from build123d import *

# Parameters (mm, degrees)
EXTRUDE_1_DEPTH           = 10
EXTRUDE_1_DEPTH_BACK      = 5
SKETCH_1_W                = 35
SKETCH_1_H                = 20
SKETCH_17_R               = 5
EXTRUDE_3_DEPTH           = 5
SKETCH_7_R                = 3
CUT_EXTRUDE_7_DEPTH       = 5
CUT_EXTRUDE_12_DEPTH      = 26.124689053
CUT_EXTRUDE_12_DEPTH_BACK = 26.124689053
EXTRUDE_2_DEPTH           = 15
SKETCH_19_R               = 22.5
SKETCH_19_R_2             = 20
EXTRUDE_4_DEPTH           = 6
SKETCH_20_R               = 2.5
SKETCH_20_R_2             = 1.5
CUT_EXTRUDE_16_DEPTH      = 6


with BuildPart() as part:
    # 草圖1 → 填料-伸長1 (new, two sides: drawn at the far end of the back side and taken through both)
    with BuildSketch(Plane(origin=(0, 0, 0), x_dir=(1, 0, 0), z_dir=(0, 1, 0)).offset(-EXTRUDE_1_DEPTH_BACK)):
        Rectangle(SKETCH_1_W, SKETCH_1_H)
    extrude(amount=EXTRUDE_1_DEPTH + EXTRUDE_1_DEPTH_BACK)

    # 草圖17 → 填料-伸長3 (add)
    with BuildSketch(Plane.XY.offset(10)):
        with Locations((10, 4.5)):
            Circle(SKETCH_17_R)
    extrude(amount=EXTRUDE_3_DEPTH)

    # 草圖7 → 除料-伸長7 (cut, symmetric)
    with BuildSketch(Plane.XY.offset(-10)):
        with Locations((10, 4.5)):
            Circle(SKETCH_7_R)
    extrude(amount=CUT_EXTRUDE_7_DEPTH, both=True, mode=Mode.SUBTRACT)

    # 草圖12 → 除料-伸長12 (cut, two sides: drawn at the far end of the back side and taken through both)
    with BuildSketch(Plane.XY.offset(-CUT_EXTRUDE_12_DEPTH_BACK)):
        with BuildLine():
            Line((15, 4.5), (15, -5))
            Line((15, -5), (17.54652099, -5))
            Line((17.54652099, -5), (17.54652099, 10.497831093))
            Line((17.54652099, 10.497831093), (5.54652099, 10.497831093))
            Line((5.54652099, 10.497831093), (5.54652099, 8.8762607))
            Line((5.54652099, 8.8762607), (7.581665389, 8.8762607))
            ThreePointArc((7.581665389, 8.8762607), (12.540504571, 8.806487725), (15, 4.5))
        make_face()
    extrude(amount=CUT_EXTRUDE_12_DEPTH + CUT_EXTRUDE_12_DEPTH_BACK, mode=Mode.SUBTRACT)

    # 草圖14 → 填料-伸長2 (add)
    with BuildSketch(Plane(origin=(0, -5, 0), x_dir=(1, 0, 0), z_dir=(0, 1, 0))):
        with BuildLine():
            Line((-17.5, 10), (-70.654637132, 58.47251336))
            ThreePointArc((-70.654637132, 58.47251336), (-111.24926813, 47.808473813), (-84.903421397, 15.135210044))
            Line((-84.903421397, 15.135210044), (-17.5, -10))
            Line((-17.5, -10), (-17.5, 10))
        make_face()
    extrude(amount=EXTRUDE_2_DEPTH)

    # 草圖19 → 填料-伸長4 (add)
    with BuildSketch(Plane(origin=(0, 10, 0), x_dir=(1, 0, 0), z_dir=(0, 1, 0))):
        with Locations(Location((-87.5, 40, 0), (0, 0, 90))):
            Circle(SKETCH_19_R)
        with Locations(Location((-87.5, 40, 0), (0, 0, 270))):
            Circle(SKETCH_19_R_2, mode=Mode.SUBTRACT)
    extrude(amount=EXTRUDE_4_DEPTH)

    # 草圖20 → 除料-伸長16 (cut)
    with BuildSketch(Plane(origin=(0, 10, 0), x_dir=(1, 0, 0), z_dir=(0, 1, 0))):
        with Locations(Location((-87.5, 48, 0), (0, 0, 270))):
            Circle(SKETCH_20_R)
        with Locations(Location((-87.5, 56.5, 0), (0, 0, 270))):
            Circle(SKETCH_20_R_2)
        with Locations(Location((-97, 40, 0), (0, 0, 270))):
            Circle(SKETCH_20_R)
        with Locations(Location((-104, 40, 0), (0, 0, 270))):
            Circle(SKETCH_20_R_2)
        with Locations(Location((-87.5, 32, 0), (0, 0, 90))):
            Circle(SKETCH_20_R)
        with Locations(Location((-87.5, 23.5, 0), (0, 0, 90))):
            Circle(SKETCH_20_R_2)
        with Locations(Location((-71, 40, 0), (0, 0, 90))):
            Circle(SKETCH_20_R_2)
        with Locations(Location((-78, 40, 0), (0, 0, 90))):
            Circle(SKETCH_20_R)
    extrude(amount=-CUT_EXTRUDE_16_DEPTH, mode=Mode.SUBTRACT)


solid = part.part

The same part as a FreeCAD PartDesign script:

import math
import FreeCAD as App
import Part
import Sketcher

doc = App.newDocument("Part")
params = doc.addObject("Spreadsheet::Sheet", "Params")
for row, (alias, value) in enumerate([
    ("sketch1_width", "35 mm"),
    ("sketch1_height", "20 mm"),
    ("pad1_length", "10 mm"),
    ("pad1_length2", "5 mm"),
    ("sketch2_diameter", "10 mm"),
    ("pad2_length", "5 mm"),
    ("sketch3_diameter", "6 mm"),
    ("pocket1_length", "10 mm"),
    ("sketch4_radius", "5 mm"),
    ("sketch4_width", "12 mm"),
    ("sketch4_height", "9.5 mm"),
    ("sketch5_radius", "25 mm"),
    ("sketch5_height", "20 mm"),
    ("pad3_length", "15 mm"),
    ("sketch6_diameter", "45 mm"),
    ("sketch6_diameter2", "40 mm"),
    ("pad4_length", "6 mm"),
    ("sketch7_diameter", "5 mm"),
    ("sketch7_diameter2", "3 mm"),
    ("pocket3_length", "6 mm"),
], start=1):
    params.set(f"A{row}", alias)
    params.set(f"B{row}", "=" + value)
    params.setAlias(f"B{row}", alias)

body = doc.addObject("PartDesign::Body", "Body")

# Sketch on XZ plane
sketch1 = body.newObject("Sketcher::SketchObject", "Sketch")
sketch1.AttachmentSupport = (doc.getObject("XZ_Plane"), [""])
sketch1.MapMode = "FlatFace"
sketch1.addGeometry([
    Part.LineSegment(App.Vector(-18, -10, 0), App.Vector(-18, 10, 0)),
    Part.LineSegment(App.Vector(-18, 10, 0), App.Vector(18, 10, 0)),
    Part.LineSegment(App.Vector(18, 10, 0), App.Vector(18, -10, 0)),
    Part.LineSegment(App.Vector(18, -10, 0), App.Vector(-18, -10, 0)),
], False)
sketch1.addConstraint([
    Sketcher.Constraint("Coincident", 0, 2, 1, 1),
    Sketcher.Constraint("Coincident", 1, 2, 2, 1),
    Sketcher.Constraint("Coincident", 2, 2, 3, 1),
    Sketcher.Constraint("Coincident", 3, 2, 0, 1),
    Sketcher.Constraint("Vertical", 0),
    Sketcher.Constraint("Horizontal", 1),
    Sketcher.Constraint("Vertical", 2),
    Sketcher.Constraint("Horizontal", 3),
    Sketcher.Constraint("Symmetric", 0, 2, 2, 2, -1, 1),
    Sketcher.Constraint("DistanceX", 1, 1, 1, 2, 35.0),
    Sketcher.Constraint("DistanceY", 0, 1, 0, 2, 20.0),
])
sketch1.setExpression("Constraints[9]", "Params.sketch1_width")
sketch1.setExpression("Constraints[10]", "Params.sketch1_height")
pad1 = body.newObject("PartDesign::Pad", "Pad")
pad1.Profile = sketch1
pad1.Type = "TwoLengths"
pad1.setExpression("Length", "Params.pad1_length")
pad1.setExpression("Length2", "Params.pad1_length2")
pad1.Reversed = True

# Sketch on XY plane
sketch2 = body.newObject("Sketcher::SketchObject", "Sketch001")
sketch2.AttachmentSupport = (doc.getObject("XY_Plane"), [""])
sketch2.MapMode = "FlatFace"
sketch2.AttachmentOffset = App.Placement(App.Vector(0, 0, 10), App.Rotation())
sketch2.addGeometry(Part.Circle(App.Vector(10, 4, 0), App.Vector(0, 0, 1), 5), False)
sketch2.addConstraint([
    Sketcher.Constraint("Diameter", 0, 10.0),
    Sketcher.Constraint("DistanceX", -1, 1, 0, 3, 10.0),
    Sketcher.Constraint("DistanceY", -1, 1, 0, 3, 4.5),
])
sketch2.setExpression("Constraints[0]", "Params.sketch2_diameter")
pad2 = body.newObject("PartDesign::Pad", "Pad001")
pad2.Profile = sketch2
pad2.setExpression("Length", "Params.pad2_length")

# Sketch on XY plane
sketch3 = body.newObject("Sketcher::SketchObject", "Sketch002")
sketch3.AttachmentSupport = (doc.getObject("XY_Plane"), [""])
sketch3.MapMode = "FlatFace"
sketch3.AttachmentOffset = App.Placement(App.Vector(0, 0, -10), App.Rotation())
sketch3.addGeometry(Part.Circle(App.Vector(10, 4.5, 0), App.Vector(0, 0, 1), 3), False)
sketch3.addConstraint([
    Sketcher.Constraint("Diameter", 0, 6.0),
    Sketcher.Constraint("DistanceX", -1, 1, 0, 3, 10.0),
    Sketcher.Constraint("DistanceY", -1, 1, 0, 3, 4.5),
])
sketch3.setExpression("Constraints[0]", "Params.sketch3_diameter")
pocket1 = body.newObject("PartDesign::Pocket", "Pocket")
pocket1.Profile = sketch3
pocket1.setExpression("Length", "Params.pocket1_length")
pocket1.Midplane = True

# Sketch on XY plane
sketch4 = body.newObject("Sketcher::SketchObject", "Sketch003")
sketch4.AttachmentSupport = (doc.getObject("XY_Plane"), [""])
sketch4.MapMode = "FlatFace"
sketch4.addGeometry([
    Part.LineSegment(App.Vector(15, 4.5, 0), App.Vector(15, -5, 0)),  # 0
    Part.LineSegment(App.Vector(15, -5, 0), App.Vector(17.5, -5, 0)),  # 1
    Part.LineSegment(App.Vector(17.5, -5, 0), App.Vector(17.5, 10.5, 0)),  # 2
    Part.LineSegment(App.Vector(17.5, 10.5, 0), App.Vector(5.5, 10.5, 0)),  # 3
    Part.LineSegment(App.Vector(5.5, 10.5, 0), App.Vector(5.5, 8.9, 0)),  # 4
    Part.LineSegment(App.Vector(5.5, 8.9, 0), App.Vector(7.6, 8.9, 0)),  # 5
    Part.ArcOfCircle(Part.Circle(App.Vector(10, 4.5, 0), App.Vector(0, 0, 1), 5), math.radians(0), math.radians(119)),  # 6
], False)
sketch4.addConstraint([
    Sketcher.Constraint("Coincident", 0, 2, 1, 1),
    Sketcher.Constraint("Coincident", 1, 2, 2, 1),
    Sketcher.Constraint("Coincident", 2, 2, 3, 1),
    Sketcher.Constraint("Coincident", 3, 2, 4, 1),
    Sketcher.Constraint("Coincident", 4, 2, 5, 1),
    Sketcher.Constraint("Coincident", 5, 2, 6, 2),
    Sketcher.Constraint("Tangent", 6, 1, 0, 1),
    Sketcher.Constraint("Vertical", 0),
    Sketcher.Constraint("Horizontal", 1),
    Sketcher.Constraint("Vertical", 2),
    Sketcher.Constraint("Horizontal", 3),
    Sketcher.Constraint("Vertical", 4),
    Sketcher.Constraint("Horizontal", 5),
    Sketcher.Constraint("Radius", 6, 5.0),
    Sketcher.Constraint("DistanceX", 3, 2, 3, 1, 12.0),
    Sketcher.Constraint("DistanceY", 0, 2, 0, 1, 9.5),
    Sketcher.Constraint("DistanceX", -1, 1, 6, 3, 10.0),
    Sketcher.Constraint("DistanceY", 0, 2, -1, 1, 5.0),
    Sketcher.Constraint("DistanceX", 1, 1, 1, 2, 2.546521),
    Sketcher.Constraint("DistanceY", 2, 1, 2, 2, 15.497831),
    Sketcher.Constraint("DistanceY", 4, 2, 4, 1, 1.62157),
])
sketch4.setExpression("Constraints[13]", "Params.sketch4_radius")
sketch4.setExpression("Constraints[14]", "Params.sketch4_width")
sketch4.setExpression("Constraints[15]", "Params.sketch4_height")
pocket2 = body.newObject("PartDesign::Pocket", "Pocket001")
pocket2.Profile = sketch4
pocket2.Type = "ThroughAll"
pocket2.Midplane = True

# Sketch on XZ plane
sketch5 = body.newObject("Sketcher::SketchObject", "Sketch004")
sketch5.AttachmentSupport = (doc.getObject("XZ_Plane"), [""])
sketch5.MapMode = "FlatFace"
sketch5.AttachmentOffset = App.Placement(App.Vector(0, 0, 5), App.Rotation())
sketch5.addGeometry([
    Part.LineSegment(App.Vector(-18, -10, 0), App.Vector(-71, -58, 0)),
    Part.ArcOfCircle(Part.Circle(App.Vector(-88, -40, 0), App.Vector(0, 0, 1), 25), math.radians(84), math.radians(312)),
    Part.LineSegment(App.Vector(-85, -15, 0), App.Vector(-18, 10, 0)),
    Part.LineSegment(App.Vector(-18, 10, 0), App.Vector(-18, -10, 0)),
], False)
sketch5.addConstraint([
    Sketcher.Constraint("Tangent", 0, 2, 1, 2),
    Sketcher.Constraint("Coincident", 1, 1, 2, 1),
    Sketcher.Constraint("Coincident", 2, 2, 3, 1),
    Sketcher.Constraint("Coincident", 3, 2, 0, 1),
    Sketcher.Constraint("Vertical", 3),
    Sketcher.Constraint("Equal", 0, 2),
    Sketcher.Constraint("Radius", 1, 25.0),
    Sketcher.Constraint("DistanceY", 3, 2, 3, 1, 20.0),
    Sketcher.Constraint("DistanceY", 1, 3, -1, 1, 40.0),
    Sketcher.Constraint("DistanceY", -1, 1, 2, 2, 10.0),
    Sketcher.Constraint("DistanceX", 1, 3, 2, 2, 70.0),
    Sketcher.Constraint("DistanceX", 1, 3, -1, 1, 87.5),
])
sketch5.setExpression("Constraints[6]", "Params.sketch5_radius")
sketch5.setExpression("Constraints[7]", "Params.sketch5_height")
pad3 = body.newObject("PartDesign::Pad", "Pad002")
pad3.Profile = sketch5
pad3.setExpression("Length", "Params.pad3_length")
pad3.Reversed = True

# Sketch on XZ plane
sketch6 = body.newObject("Sketcher::SketchObject", "Sketch005")
sketch6.AttachmentSupport = (doc.getObject("XZ_Plane"), [""])
sketch6.MapMode = "FlatFace"
sketch6.AttachmentOffset = App.Placement(App.Vector(0, 0, -10), App.Rotation())
sketch6.addGeometry([
    Part.Circle(App.Vector(-88, -40, 0), App.Vector(0, 0, 1), 22),
    Part.Circle(App.Vector(-88, -40, 0), App.Vector(0, 0, 1), 20),
], False)
sketch6.addConstraint([
    Sketcher.Constraint("Coincident", 1, 3, 0, 3),
    Sketcher.Constraint("Diameter", 0, 45.0),
    Sketcher.Constraint("Diameter", 1, 40.0),
    Sketcher.Constraint("DistanceY", 0, 3, -1, 1, 40.0),
    Sketcher.Constraint("DistanceX", 0, 3, -1, 1, 87.5),
])
sketch6.setExpression("Constraints[1]", "Params.sketch6_diameter")
sketch6.setExpression("Constraints[2]", "Params.sketch6_diameter2")
pad4 = body.newObject("PartDesign::Pad", "Pad003")
pad4.Profile = sketch6
pad4.setExpression("Length", "Params.pad4_length")
pad4.Reversed = True

# Sketch on XZ plane
sketch7 = body.newObject("Sketcher::SketchObject", "Sketch006")
sketch7.AttachmentSupport = (doc.getObject("XZ_Plane"), [""])
sketch7.MapMode = "FlatFace"
sketch7.AttachmentOffset = App.Placement(App.Vector(0, 0, -10), App.Rotation())
sketch7.addGeometry([
    Part.Circle(App.Vector(-87.5, -48, 0), App.Vector(0, 0, 1), 2.5),  # 0
    Part.Circle(App.Vector(-87.5, -56.5, 0), App.Vector(0, 0, 1), 1.5),  # 1
    Part.Circle(App.Vector(-97, -40, 0), App.Vector(0, 0, 1), 2.5),  # 2
    Part.Circle(App.Vector(-104, -40, 0), App.Vector(0, 0, 1), 1.5),  # 3
    Part.Circle(App.Vector(-87.5, -32, 0), App.Vector(0, 0, 1), 2.5),  # 4
    Part.Circle(App.Vector(-87.5, -23.5, 0), App.Vector(0, 0, 1), 1.5),  # 5
    Part.Circle(App.Vector(-71, -40, 0), App.Vector(0, 0, 1), 1.5),  # 6
    Part.Circle(App.Vector(-78, -40, 0), App.Vector(0, 0, 1), 2.5),  # 7
], False)
sketch7.addConstraint([
    Sketcher.Constraint("Equal", 0, 2),
    Sketcher.Constraint("Equal", 1, 3),
    Sketcher.Constraint("Equal", 2, 4),
    Sketcher.Constraint("Equal", 3, 5),
    Sketcher.Constraint("Equal", 5, 6),
    Sketcher.Constraint("Equal", 4, 7),
    Sketcher.Constraint("Horizontal", 2, 3, 3, 3),
    Sketcher.Constraint("Horizontal", 3, 3, 6, 3),
    Sketcher.Constraint("Horizontal", 6, 3, 7, 3),
    Sketcher.Constraint("Vertical", 0, 3, 1, 3),
    Sketcher.Constraint("Vertical", 1, 3, 4, 3),
    Sketcher.Constraint("Vertical", 4, 3, 5, 3),
    Sketcher.Constraint("Diameter", 0, 5.0),
    Sketcher.Constraint("Diameter", 1, 3.0),
    Sketcher.Constraint("DistanceY", 0, 3, -1, 1, 48.0),
    Sketcher.Constraint("DistanceX", 2, 3, -1, 1, 97.0),
    Sketcher.Constraint("DistanceY", 2, 3, -1, 1, 40.0),
    Sketcher.Constraint("DistanceX", 3, 3, -1, 1, 104.0),
    Sketcher.Constraint("DistanceY", 4, 3, -1, 1, 32.0),
    Sketcher.Constraint("DistanceX", 6, 3, -1, 1, 71.0),
    Sketcher.Constraint("DistanceX", 7, 3, -1, 1, 78.0),
    Sketcher.Constraint("DistanceY", 1, 3, 5, 3, 33.0),
    Sketcher.Constraint("DistanceX", 0, 3, -1, 1, 87.5),
    Sketcher.Constraint("DistanceY", 1, 3, -1, 1, 56.5),
])
sketch7.setExpression("Constraints[12]", "Params.sketch7_diameter")
sketch7.setExpression("Constraints[13]", "Params.sketch7_diameter2")
pocket3 = body.newObject("PartDesign::Pocket", "Pocket002")
pocket3.Profile = sketch7
pocket3.setExpression("Length", "Params.pocket3_length")
pocket3.Reversed = True

doc.recompute()
